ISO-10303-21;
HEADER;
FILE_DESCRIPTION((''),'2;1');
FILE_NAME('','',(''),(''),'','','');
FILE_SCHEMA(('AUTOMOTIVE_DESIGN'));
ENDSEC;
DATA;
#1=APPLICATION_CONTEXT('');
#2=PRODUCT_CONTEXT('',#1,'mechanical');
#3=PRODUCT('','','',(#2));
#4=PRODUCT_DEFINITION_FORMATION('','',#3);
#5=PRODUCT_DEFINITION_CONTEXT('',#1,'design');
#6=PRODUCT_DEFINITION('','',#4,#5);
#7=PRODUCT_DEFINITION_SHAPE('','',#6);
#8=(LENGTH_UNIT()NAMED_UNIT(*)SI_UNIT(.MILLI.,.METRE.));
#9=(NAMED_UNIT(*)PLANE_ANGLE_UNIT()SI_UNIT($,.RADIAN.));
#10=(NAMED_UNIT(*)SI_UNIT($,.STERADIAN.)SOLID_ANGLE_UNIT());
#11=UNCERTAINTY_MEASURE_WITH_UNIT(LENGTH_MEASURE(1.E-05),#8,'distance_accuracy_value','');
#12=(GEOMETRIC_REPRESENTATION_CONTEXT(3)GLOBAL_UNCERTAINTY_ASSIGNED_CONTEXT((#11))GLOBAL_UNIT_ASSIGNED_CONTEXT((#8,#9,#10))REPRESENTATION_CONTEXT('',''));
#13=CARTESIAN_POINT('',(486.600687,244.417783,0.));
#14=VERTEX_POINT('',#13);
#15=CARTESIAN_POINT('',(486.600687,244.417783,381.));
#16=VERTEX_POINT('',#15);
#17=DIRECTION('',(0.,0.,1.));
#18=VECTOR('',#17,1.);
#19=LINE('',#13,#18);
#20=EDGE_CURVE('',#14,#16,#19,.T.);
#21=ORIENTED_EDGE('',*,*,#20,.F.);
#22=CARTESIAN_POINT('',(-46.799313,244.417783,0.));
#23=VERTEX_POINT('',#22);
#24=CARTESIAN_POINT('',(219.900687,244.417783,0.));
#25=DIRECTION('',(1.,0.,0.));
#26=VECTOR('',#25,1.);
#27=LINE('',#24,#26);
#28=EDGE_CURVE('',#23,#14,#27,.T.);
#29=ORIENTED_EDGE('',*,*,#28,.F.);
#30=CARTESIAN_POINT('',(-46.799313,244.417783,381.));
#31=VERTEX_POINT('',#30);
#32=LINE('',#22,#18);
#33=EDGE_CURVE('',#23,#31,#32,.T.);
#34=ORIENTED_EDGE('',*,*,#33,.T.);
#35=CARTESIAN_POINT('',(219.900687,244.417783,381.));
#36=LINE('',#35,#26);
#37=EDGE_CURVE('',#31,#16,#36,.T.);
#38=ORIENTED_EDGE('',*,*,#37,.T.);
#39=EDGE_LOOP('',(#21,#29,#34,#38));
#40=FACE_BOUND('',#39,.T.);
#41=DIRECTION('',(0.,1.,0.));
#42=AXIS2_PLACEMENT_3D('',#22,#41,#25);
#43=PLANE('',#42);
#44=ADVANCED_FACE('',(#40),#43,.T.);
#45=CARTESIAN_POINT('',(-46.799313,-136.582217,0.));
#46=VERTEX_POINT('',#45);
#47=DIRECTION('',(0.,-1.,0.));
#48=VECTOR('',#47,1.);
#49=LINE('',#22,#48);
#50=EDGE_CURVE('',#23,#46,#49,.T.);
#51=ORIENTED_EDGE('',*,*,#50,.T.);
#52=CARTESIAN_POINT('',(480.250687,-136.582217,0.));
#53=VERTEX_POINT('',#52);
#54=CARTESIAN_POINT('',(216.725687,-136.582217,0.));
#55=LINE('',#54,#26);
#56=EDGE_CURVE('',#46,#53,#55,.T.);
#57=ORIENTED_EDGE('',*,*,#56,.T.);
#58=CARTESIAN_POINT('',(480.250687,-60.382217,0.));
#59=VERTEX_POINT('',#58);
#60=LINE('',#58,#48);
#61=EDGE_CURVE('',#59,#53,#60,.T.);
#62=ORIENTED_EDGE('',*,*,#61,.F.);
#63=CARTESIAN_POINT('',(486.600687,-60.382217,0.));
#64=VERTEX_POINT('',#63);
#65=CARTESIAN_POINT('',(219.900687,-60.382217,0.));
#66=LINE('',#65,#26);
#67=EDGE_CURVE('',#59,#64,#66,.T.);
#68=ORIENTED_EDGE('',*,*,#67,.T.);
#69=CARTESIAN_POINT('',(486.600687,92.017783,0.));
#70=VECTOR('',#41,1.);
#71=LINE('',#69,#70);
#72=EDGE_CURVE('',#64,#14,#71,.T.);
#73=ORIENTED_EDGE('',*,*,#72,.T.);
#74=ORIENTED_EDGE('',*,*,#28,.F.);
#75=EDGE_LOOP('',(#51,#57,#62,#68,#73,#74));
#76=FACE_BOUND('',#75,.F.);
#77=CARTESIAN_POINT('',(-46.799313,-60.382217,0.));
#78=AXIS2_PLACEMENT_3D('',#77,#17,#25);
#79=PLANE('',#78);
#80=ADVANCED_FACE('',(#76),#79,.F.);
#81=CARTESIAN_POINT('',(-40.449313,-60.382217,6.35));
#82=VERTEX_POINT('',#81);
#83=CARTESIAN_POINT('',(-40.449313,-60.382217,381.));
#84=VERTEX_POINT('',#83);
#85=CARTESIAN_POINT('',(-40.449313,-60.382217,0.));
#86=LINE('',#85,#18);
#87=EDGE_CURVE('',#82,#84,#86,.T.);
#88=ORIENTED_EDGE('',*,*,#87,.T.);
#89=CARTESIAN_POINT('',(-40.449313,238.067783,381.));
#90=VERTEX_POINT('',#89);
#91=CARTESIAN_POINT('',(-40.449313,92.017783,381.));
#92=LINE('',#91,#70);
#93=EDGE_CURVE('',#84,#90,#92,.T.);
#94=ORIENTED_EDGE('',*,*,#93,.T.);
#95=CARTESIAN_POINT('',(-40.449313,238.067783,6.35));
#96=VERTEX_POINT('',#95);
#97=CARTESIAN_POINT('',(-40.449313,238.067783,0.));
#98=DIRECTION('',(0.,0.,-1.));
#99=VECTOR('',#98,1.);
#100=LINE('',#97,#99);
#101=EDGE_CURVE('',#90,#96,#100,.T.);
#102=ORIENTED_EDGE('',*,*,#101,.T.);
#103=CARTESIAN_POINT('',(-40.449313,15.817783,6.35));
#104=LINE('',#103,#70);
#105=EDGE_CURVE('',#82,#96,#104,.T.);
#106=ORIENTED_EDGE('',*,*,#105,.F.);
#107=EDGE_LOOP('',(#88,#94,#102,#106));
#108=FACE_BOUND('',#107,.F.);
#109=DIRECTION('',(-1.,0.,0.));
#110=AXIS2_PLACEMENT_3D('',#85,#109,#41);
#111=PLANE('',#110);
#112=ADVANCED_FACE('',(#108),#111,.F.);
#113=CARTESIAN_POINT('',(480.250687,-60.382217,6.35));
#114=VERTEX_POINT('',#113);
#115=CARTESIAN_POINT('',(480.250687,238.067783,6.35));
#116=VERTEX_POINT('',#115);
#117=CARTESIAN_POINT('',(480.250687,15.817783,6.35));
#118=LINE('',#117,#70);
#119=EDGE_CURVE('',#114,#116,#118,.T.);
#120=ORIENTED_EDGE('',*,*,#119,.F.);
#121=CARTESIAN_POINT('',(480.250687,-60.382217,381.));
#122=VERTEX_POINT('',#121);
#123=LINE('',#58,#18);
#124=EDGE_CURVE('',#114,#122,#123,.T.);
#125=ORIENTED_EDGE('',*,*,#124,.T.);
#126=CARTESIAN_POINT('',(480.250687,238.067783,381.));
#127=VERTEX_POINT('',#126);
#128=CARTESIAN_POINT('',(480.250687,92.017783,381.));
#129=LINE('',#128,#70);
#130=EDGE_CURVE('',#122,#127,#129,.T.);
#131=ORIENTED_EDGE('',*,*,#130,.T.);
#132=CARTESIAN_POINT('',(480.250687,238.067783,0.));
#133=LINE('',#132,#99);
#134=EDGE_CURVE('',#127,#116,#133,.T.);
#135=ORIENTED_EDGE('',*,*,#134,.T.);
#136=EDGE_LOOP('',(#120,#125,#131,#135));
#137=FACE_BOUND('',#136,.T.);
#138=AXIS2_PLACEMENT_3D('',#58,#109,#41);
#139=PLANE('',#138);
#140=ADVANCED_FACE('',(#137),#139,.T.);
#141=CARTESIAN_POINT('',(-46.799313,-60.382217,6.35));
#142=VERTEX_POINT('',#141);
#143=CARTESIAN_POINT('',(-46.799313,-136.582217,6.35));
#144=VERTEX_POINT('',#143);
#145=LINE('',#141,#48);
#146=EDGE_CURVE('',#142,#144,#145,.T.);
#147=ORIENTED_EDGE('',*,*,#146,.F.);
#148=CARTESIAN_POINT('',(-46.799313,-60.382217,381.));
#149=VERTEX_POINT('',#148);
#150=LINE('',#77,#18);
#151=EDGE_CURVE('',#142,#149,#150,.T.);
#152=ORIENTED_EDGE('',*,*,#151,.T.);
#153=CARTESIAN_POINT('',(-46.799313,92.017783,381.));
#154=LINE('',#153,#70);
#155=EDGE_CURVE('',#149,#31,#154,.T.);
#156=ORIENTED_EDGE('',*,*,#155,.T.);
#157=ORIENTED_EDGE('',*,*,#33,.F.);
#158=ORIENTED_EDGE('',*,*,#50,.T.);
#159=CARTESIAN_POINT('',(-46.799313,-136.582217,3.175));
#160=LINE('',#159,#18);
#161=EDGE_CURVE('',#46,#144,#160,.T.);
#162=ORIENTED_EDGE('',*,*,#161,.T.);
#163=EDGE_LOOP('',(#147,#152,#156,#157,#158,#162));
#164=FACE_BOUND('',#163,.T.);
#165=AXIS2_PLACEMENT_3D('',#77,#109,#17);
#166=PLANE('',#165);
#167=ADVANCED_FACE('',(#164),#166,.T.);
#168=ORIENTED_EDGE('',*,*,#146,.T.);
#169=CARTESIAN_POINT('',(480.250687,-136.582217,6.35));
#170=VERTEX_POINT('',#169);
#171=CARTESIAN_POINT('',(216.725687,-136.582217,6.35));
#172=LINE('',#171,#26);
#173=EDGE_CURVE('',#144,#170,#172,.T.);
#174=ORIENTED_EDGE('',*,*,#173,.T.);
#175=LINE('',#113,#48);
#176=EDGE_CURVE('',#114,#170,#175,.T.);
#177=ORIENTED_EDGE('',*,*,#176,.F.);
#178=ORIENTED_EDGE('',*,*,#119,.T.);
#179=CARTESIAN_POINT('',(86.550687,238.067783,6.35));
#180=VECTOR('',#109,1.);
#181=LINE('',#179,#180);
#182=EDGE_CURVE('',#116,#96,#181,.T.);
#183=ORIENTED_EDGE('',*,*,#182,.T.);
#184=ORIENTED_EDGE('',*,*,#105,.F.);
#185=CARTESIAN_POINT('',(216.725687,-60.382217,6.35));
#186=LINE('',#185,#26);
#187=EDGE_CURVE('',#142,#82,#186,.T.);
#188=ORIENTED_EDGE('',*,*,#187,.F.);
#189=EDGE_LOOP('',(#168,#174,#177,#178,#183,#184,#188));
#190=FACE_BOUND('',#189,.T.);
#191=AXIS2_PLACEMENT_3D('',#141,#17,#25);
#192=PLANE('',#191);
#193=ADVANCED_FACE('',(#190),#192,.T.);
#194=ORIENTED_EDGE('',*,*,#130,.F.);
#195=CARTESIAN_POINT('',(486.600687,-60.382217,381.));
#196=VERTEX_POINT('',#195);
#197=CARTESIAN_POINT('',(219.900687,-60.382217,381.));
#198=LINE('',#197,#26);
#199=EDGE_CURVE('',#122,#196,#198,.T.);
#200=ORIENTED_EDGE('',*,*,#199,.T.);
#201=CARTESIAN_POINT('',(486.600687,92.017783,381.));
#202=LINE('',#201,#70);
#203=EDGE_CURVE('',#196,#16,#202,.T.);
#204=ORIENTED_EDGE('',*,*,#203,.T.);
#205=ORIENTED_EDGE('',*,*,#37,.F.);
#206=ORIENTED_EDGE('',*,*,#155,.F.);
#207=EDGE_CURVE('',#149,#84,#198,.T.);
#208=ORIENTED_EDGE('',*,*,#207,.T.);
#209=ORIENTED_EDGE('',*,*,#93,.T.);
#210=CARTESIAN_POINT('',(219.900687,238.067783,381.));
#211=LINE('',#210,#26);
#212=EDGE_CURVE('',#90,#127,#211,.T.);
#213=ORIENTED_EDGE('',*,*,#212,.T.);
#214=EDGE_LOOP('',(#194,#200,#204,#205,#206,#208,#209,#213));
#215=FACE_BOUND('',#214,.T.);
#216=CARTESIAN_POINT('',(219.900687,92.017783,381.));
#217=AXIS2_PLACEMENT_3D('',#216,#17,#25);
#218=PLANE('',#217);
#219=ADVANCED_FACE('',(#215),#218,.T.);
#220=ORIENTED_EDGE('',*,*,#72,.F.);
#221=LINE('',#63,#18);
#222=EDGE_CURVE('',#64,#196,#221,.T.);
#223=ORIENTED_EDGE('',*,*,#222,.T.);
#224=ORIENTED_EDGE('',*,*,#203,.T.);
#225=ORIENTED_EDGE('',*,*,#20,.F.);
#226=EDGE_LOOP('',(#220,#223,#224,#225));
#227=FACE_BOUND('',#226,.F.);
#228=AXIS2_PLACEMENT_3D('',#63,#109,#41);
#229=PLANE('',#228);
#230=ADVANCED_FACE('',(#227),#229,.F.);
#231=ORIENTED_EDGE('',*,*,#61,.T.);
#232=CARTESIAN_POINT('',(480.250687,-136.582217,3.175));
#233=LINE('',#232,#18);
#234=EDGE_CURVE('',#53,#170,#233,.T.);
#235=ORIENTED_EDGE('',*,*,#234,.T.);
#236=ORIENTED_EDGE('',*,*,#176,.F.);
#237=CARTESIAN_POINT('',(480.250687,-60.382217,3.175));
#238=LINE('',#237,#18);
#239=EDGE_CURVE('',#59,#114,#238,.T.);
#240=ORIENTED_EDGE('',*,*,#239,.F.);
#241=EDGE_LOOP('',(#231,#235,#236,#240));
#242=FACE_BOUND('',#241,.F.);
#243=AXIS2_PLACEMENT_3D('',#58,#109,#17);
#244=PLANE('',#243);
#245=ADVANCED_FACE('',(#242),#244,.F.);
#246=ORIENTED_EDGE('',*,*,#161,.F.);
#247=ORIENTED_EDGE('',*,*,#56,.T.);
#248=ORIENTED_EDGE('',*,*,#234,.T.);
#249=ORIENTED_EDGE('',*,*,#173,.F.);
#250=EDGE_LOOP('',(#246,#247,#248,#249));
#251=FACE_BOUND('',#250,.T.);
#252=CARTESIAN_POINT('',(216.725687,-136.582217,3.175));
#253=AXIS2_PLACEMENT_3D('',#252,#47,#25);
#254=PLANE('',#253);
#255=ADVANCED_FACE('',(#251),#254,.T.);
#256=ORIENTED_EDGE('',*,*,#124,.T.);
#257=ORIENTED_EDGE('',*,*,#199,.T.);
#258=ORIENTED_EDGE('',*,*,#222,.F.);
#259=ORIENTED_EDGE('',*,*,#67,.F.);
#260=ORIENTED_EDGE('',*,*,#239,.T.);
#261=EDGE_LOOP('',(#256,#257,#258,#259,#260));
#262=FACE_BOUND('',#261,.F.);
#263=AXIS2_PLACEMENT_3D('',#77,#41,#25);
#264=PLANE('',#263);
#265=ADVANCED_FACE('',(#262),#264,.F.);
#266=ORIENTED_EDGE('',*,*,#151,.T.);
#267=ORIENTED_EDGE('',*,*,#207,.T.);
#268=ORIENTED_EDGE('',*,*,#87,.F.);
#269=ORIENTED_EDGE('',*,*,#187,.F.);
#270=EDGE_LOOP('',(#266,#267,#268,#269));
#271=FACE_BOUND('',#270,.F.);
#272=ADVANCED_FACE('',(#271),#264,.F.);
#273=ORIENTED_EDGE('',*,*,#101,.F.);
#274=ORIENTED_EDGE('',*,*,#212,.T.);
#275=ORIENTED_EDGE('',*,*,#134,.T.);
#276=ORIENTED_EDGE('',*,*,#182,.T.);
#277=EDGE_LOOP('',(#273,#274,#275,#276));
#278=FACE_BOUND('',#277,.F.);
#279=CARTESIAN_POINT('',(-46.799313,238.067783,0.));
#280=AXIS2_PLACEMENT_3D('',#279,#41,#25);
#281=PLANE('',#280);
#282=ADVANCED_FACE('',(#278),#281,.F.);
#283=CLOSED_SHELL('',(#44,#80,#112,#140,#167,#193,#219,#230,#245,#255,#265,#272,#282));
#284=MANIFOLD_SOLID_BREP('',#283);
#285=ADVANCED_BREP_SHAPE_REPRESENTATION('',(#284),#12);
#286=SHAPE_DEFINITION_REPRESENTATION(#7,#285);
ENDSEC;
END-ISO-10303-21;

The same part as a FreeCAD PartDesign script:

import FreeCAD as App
import Part
import Sketcher

V = App.Vector
Q = App.Units.Quantity


def faces_at(feature, points):
    """Names of the faces that lie closest to the given points."""
    faces = feature.Shape.Faces
    near = lambda p: min(range(len(faces)), key=lambda i: faces[i].distToShape(Part.Vertex(*p))[0])
    return sorted({f"Face{near(p) + 1}" for p in points})


def add_polygon(sketch, points):
    """Adds a closed chain of lines whose ends are joined by coincident constraints."""
    first, n = sketch.GeometryCount, len(points)
    for a, b in zip(points, points[1:] + points[:1]):
        sketch.addGeometry(Part.LineSegment(App.Vector(*a, 0), App.Vector(*b, 0)), False)
    for i in range(n):
        sketch.addConstraint(Sketcher.Constraint("Coincident", first + i, 2, first + (i + 1) % n, 1))

doc = App.newDocument("Part")
body = doc.addObject("PartDesign::Body", "Body")

sketch1 = body.newObject("Sketcher::SketchObject", "Sketch")
sketch1.AttachmentSupport = (doc.getObject("XY_Plane"), [""])
sketch1.MapMode = "FlatFace"
add_polygon(sketch1, [(-46.799313, 244.417783), (-46.799313, -60.382217), (486.600687, -60.382217), (486.600687, 244.417783)])
sketch1.addConstraint([
    Sketcher.Constraint("Vertical", 0),
    Sketcher.Constraint("Horizontal", 1),
    Sketcher.Constraint("Vertical", 2),
    Sketcher.Constraint("Horizontal", 3),
    Sketcher.Constraint("DistanceX", 1, 1, 1, 2, Q("21 in")),
    Sketcher.Constraint("DistanceY", 0, 2, 0, 1, Q("12 in")),
    Sketcher.Constraint("DistanceX", 0, 2, -1, 1, Q("46.799313 mm")),
    Sketcher.Constraint("DistanceY", 0, 2, -1, 1, Q("60.382217 mm")),
])
pad1 = body.newObject("PartDesign::Pad", "Pad")
pad1.Profile = sketch1
pad1.Length = Q("15 in")
doc.recompute()

thickness = body.newObject("PartDesign::Thickness", "Thickness")
thickness.Base = (pad1, faces_at(pad1, [(219.901, 92.018, 381), (219.901, -60.382, 190.5)]))
thickness.Value = Q("0.25 in")
thickness.Reversed = True
thickness.Join = "Arc"

sketch2 = body.newObject("Sketcher::SketchObject", "Sketch001")
sketch2.AttachmentSupport = (doc.getObject("XZ_Plane"), [""])
sketch2.MapMode = "FlatFace"
sketch2.AttachmentOffset = App.Placement(V(0, 0, 60.382217), App.Rotation())
add_polygon(sketch2, [(-46.799313, 6.35), (-46.799313, 0), (480.250687, 0), (480.250687, 6.35)])
sketch2.addConstraint([
    Sketcher.Constraint("Vertical", 0),
    Sketcher.Constraint("Horizontal", 1),
    Sketcher.Constraint("Vertical", 2),
    Sketcher.Constraint("Horizontal", 3),
    Sketcher.Constraint("PointOnObject", 0, 2, -1),
    Sketcher.Constraint("DistanceX", 1, 1, 1, 2, Q("20.75 in")),
    Sketcher.Constraint("DistanceY", 0, 2, 0, 1, Q("0.25 in")),
    Sketcher.Constraint("DistanceX", 0, 2, -1, 1, Q("46.799313 mm")),
])
pad2 = body.newObject("PartDesign::Pad", "Pad001")
pad2.Profile = sketch2
pad2.Length = Q("3 in")

doc.recompute()
